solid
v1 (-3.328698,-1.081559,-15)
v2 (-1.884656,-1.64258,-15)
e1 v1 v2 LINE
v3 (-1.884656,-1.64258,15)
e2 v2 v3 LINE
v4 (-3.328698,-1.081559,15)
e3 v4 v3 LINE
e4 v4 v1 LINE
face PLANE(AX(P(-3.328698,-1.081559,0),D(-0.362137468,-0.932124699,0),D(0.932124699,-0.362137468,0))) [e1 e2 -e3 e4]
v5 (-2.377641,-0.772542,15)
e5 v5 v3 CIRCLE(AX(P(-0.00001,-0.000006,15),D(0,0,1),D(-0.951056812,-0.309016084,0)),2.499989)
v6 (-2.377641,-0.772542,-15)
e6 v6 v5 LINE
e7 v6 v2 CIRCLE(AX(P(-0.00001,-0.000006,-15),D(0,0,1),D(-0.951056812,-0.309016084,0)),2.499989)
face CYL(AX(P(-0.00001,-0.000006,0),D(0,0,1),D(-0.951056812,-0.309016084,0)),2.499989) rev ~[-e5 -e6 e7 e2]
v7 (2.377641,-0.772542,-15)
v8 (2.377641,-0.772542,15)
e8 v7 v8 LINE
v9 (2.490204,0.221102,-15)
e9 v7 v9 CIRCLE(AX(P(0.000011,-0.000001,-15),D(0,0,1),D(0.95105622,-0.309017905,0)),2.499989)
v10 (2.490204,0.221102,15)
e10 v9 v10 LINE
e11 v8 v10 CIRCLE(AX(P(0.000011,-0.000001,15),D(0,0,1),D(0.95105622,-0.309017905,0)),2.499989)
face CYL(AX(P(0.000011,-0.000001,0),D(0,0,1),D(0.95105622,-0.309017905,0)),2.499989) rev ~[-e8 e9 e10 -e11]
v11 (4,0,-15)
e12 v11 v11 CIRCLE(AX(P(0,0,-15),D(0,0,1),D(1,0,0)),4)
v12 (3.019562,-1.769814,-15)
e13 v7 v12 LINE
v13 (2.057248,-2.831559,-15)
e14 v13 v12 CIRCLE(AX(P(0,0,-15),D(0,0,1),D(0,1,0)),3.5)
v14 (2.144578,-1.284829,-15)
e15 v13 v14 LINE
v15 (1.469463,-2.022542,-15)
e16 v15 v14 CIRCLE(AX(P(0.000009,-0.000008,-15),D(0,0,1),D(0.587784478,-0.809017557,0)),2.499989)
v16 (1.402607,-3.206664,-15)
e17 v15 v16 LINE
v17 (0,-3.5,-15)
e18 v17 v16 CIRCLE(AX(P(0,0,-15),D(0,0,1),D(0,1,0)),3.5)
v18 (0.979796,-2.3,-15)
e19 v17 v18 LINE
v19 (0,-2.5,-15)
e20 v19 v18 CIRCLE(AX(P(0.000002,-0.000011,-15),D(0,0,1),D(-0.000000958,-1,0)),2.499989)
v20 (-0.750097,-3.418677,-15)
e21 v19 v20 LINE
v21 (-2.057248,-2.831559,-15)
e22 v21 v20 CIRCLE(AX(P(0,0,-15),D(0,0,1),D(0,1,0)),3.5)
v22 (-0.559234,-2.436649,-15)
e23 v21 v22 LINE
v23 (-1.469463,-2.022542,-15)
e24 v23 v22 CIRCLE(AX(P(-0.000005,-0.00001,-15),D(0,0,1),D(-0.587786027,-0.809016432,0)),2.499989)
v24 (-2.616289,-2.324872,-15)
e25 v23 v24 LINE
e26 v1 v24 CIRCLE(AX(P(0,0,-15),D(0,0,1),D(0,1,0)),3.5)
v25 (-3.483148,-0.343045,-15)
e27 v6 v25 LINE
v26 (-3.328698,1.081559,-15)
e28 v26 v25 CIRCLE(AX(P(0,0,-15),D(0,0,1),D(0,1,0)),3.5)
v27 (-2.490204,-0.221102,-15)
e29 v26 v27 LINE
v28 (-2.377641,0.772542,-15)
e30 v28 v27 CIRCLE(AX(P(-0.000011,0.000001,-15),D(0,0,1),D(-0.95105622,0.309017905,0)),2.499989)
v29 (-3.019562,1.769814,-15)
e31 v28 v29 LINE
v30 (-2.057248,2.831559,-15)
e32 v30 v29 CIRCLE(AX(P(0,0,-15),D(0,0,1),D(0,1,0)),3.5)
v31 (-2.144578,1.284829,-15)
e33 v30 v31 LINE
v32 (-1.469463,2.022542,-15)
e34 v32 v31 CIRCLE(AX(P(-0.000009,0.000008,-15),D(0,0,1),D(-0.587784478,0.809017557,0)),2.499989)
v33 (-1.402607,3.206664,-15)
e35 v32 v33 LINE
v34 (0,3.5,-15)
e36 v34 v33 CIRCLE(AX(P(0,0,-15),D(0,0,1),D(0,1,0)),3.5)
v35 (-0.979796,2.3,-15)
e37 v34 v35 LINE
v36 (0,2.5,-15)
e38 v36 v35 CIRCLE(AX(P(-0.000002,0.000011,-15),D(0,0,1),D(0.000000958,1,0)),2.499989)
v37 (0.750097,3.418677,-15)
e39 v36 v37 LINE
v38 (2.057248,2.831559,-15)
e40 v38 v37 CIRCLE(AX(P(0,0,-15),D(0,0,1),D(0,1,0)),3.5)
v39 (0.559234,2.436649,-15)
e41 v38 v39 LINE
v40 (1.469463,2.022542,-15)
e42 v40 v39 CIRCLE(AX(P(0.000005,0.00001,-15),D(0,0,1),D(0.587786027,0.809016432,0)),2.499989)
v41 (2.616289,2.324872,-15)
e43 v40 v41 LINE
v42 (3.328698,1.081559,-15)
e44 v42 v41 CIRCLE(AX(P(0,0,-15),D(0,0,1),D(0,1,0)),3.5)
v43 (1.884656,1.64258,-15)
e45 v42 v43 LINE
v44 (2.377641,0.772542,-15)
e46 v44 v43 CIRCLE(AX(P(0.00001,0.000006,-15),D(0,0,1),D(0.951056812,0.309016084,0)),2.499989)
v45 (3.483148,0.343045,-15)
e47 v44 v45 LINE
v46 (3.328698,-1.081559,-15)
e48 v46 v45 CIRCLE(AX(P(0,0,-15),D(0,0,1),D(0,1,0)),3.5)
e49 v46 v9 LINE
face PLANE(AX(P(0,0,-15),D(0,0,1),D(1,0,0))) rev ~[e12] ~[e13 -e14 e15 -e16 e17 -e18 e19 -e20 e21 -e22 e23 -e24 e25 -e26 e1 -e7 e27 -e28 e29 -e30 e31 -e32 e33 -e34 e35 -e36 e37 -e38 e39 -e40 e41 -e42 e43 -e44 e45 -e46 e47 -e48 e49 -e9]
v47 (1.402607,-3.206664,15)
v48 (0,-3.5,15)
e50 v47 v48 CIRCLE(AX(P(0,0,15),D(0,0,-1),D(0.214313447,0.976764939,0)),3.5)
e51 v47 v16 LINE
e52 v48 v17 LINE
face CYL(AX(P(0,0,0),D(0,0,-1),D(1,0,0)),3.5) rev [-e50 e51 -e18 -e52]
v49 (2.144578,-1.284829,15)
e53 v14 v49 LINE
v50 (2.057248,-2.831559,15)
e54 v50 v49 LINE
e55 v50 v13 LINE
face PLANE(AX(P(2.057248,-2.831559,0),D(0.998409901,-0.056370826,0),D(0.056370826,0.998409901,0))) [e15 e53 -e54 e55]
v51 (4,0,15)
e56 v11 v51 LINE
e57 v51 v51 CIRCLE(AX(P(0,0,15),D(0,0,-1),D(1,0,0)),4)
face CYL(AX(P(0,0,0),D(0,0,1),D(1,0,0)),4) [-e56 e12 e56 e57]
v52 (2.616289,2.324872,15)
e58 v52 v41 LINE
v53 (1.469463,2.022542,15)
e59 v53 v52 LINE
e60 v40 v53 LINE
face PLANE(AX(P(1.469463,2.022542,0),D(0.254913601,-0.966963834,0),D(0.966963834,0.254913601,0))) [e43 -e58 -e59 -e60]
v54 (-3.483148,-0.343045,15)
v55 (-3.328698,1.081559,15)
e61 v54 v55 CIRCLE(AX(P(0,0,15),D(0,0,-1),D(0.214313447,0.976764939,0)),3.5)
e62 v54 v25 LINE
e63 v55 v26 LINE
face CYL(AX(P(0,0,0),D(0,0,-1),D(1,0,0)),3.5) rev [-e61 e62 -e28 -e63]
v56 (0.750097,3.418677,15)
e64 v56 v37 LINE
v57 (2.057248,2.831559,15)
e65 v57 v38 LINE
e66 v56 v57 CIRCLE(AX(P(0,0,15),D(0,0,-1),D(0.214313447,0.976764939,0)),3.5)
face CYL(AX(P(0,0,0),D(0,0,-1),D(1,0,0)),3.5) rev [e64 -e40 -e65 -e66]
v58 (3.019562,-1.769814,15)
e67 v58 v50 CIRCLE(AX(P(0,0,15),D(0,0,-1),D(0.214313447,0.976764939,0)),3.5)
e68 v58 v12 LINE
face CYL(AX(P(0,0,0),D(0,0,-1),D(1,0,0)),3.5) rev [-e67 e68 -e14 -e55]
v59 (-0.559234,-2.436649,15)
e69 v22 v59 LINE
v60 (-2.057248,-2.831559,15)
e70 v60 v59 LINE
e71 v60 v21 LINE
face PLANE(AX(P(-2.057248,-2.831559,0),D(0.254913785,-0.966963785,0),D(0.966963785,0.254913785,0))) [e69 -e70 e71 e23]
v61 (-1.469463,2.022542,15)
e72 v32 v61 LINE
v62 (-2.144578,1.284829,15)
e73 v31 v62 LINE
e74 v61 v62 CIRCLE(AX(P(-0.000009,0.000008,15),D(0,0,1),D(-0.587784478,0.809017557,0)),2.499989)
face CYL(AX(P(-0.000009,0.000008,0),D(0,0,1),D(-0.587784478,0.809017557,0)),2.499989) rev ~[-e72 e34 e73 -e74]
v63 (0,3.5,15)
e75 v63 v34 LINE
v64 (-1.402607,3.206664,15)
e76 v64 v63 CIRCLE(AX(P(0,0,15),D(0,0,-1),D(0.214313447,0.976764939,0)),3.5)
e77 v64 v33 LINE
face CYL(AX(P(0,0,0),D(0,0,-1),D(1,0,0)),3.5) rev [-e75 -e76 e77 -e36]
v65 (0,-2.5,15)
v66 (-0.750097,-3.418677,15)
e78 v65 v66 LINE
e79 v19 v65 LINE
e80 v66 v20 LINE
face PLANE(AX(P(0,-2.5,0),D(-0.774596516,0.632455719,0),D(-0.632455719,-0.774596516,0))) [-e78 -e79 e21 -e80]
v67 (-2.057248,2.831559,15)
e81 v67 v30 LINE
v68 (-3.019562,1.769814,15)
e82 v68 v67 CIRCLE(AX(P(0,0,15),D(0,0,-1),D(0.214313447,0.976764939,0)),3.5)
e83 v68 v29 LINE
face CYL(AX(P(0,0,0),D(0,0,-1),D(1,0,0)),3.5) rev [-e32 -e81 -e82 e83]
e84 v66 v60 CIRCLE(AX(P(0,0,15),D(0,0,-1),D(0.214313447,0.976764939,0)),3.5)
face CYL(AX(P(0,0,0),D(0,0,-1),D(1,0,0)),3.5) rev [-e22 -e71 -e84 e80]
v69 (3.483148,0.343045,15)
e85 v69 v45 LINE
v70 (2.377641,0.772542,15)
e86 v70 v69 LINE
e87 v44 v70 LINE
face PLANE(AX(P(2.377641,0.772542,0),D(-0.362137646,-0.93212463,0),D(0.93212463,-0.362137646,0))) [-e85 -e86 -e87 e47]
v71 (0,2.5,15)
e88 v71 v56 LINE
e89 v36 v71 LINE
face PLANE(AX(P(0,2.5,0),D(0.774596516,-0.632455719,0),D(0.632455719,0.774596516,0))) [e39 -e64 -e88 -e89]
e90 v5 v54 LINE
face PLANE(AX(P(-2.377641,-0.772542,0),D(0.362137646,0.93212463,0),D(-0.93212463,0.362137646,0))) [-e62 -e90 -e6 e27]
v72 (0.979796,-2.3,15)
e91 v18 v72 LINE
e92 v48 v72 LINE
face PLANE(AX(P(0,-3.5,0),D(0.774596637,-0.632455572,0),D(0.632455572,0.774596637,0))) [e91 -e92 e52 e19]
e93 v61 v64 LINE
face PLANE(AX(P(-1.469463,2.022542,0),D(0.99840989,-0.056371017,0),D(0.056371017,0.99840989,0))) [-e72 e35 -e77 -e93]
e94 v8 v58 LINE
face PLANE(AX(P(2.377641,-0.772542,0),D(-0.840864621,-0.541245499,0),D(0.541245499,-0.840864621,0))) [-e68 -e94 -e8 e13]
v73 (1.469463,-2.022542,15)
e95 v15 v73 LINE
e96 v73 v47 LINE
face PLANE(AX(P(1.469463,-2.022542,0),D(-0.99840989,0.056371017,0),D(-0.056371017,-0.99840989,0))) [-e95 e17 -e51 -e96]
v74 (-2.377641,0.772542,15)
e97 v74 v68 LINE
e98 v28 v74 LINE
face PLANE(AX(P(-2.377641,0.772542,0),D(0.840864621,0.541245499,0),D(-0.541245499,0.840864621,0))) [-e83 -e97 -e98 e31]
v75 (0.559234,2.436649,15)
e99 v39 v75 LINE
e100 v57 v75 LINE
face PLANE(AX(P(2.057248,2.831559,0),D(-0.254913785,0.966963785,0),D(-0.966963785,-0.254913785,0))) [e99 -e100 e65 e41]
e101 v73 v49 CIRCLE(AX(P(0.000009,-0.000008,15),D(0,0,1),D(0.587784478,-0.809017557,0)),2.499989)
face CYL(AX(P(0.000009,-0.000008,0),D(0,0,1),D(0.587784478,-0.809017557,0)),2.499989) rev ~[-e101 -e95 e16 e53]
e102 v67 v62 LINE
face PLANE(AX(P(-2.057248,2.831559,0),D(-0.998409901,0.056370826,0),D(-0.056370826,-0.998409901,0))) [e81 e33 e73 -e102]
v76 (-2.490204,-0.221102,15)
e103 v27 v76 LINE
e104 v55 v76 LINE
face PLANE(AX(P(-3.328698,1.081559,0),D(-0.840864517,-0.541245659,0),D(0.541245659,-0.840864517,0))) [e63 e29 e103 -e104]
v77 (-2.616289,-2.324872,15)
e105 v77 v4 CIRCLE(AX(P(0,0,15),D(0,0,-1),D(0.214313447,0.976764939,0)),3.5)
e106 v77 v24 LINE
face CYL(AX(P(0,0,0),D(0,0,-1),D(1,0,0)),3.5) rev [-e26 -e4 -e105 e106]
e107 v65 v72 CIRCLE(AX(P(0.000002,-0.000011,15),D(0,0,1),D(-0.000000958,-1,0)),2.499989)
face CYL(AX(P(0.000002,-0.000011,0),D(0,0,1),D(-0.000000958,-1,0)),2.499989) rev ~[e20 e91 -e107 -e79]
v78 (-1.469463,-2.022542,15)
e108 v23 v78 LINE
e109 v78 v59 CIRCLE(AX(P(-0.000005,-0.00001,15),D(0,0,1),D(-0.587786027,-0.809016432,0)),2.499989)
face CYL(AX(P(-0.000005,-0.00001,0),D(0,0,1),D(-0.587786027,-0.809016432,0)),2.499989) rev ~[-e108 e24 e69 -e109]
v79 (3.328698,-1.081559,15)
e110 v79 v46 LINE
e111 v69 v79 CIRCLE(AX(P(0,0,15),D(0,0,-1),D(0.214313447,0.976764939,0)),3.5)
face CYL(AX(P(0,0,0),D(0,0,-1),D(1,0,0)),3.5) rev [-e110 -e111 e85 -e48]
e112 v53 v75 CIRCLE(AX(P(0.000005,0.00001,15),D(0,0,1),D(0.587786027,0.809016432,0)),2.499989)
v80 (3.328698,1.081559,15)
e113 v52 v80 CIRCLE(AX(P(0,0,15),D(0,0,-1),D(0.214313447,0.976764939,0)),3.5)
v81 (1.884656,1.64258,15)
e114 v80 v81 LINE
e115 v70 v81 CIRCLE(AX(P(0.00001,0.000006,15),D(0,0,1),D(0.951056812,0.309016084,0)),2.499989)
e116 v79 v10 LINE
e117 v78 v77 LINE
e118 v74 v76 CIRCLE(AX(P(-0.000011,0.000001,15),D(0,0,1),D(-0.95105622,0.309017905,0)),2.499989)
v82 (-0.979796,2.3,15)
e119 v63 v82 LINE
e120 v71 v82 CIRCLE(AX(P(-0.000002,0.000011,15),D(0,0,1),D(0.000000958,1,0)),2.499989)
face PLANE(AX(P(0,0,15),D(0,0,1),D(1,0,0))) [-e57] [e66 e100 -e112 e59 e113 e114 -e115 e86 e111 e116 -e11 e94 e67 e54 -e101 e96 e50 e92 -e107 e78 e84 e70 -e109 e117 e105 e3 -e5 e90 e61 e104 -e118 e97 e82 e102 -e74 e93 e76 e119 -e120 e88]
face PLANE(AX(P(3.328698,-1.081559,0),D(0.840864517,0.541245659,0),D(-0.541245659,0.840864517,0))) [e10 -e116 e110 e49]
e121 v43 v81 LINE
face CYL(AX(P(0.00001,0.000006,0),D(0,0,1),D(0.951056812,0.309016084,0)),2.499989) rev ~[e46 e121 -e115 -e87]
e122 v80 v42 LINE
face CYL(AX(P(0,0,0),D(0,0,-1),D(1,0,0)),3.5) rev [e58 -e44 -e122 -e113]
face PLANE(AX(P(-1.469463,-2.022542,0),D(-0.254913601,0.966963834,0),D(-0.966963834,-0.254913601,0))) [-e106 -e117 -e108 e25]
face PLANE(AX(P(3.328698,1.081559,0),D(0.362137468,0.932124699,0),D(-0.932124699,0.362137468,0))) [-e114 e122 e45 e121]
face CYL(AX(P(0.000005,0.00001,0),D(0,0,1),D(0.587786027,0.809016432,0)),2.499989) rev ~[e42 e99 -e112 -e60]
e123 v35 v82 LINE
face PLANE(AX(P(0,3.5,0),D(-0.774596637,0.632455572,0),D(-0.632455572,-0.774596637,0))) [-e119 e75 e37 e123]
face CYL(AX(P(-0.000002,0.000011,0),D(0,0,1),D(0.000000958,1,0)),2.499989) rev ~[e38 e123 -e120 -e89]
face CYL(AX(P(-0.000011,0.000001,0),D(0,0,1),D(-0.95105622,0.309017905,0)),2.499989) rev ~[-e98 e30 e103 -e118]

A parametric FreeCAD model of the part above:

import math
import FreeCAD as App
import Part
import Sketcher

V = App.Vector
Q = App.Units.Quantity

doc = App.newDocument("Part")
body = doc.addObject("PartDesign::Body", "Body")

# Sketch on XY plane
sketch1 = body.newObject("Sketcher::SketchObject", "Sketch")
sketch1.AttachmentSupport = (doc.getObject("XY_Plane"), [""])
sketch1.MapMode = "FlatFace"
sketch1.addGeometry(Part.Circle(V(0, 0, 0), V(0, 0, 1), 4), False)
sketch1.addGeometry(Part.Circle(V(0, 0, 0), V(0, 0, 1), 3.5), False)
sketch1.addConstraint(Sketcher.Constraint("Coincident", 0, 3, -1, 1))
sketch1.addConstraint(Sketcher.Constraint("Coincident", 1, 3, -1, 1))
sketch1.addConstraint(Sketcher.Constraint("Diameter", 0, Q("8 mm")))
sketch1.addConstraint(Sketcher.Constraint("Diameter", 1, Q("7 mm")))
pad1 = body.newObject("PartDesign::Pad", "Pad")
pad1.Profile = sketch1
pad1.Length = 30
pad1.Midplane = True

# Sketch on XY plane
sketch2 = body.newObject("Sketcher::SketchObject", "Sketch001")
sketch2.AttachmentSupport = (doc.getObject("XY_Plane"), [""])
sketch2.MapMode = "FlatFace"
sketch2.addGeometry(Part.LineSegment(V(0, 3.5, 0), V(-1, 2.3, 0)), False)
sketch2.addGeometry(Part.ArcOfCircle(Part.Circle(V(0, 0, 0), V(0, 0, 1), 2.5), math.radians(90), math.radians(113)), False)
sketch2.addGeometry(Part.LineSegment(V(0, 2.5, 0), V(0.8, 3.4, 0)), False)
sketch2.addGeometry(Part.ArcOfCircle(Part.Circle(V(0, 0, 0), V(0, 0, 1), 3.5), math.radians(77.62), math.radians(90)), False)
sketch2.addConstraint(Sketcher.Constraint("Coincident", 0, 2, 1, 2))
sketch2.addConstraint(Sketcher.Constraint("Coincident", 1, 1, 2, 1))
sketch2.addConstraint(Sketcher.Constraint("Coincident", 2, 2, 3, 1))
sketch2.addConstraint(Sketcher.Constraint("Coincident", 3, 2, 0, 1))
sketch2.addConstraint(Sketcher.Constraint("PointOnObject", 1, 1, -2))
sketch2.addConstraint(Sketcher.Constraint("PointOnObject", 3, 2, -2))
sketch2.addConstraint(Sketcher.Constraint("Parallel", 0, 2))
sketch2.addConstraint(Sketcher.Constraint("DistanceY", 1, 1, 3, 2, Q("1 mm")))
sketch2.addConstraint(Sketcher.Constraint("DistanceY", -1, 1, 0, 2, Q("2.3 mm")))
sketch2.addConstraint(Sketcher.Constraint("DistanceY", -1, 1, 1, 1, Q("2.5 mm")))
sketch2.addConstraint(Sketcher.Constraint("Radius", 1, Q("2.499989 mm")))
sketch2.addConstraint(Sketcher.Constraint("Radius", 3, Q("3.499968 mm")))
sketch2.addConstraint(Sketcher.Constraint("DistanceX", 0, 2, 3, 3, Q("0.979798 mm")))
sketch2.addConstraint(Sketcher.Constraint("DistanceX", 1, 3, 2, 2, Q("0.750099 mm")))
pad2 = body.newObject("PartDesign::Pad", "Pad001")
pad2.Profile = sketch2
pad2.Length = 30
pad2.Midplane = True
body2 = doc.addObject("PartDesign::Body", "Body001")
doc.recompute()

body2.BaseFeature = body
doc.recompute()

body3 = doc.addObject("PartDesign::Body", "Body002")
body3.BaseFeature = body
body3.Placement = App.Placement(V(0, 0, 0), App.Rotation(V(0, 0, 1), 36))
boolean = body2.newObject("PartDesign::Boolean", "Boolean")
boolean.Type = "Fuse"
boolean.addObjects([body3])
doc.recompute()

body4 = doc.addObject("PartDesign::Body", "Body003")
body4.BaseFeature = body
body4.Placement = App.Placement(V(0, 0, 0), App.Rotation(V(0, 0, 1), 72))
boolean2 = body2.newObject("PartDesign::Boolean", "Boolean001")
boolean2.Type = "Fuse"
boolean2.addObjects([body4])
doc.recompute()

body5 = doc.addObject("PartDesign::Body", "Body004")
body5.BaseFeature = body
body5.Placement = App.Placement(V(0, 0, 0), App.Rotation(V(0, 0, 1), 108))
boolean3 = body2.newObject("PartDesign::Boolean", "Boolean002")
boolean3.Type = "Fuse"
boolean3.addObjects([body5])
doc.recompute()

body6 = doc.addObject("PartDesign::Body", "Body005")
body6.BaseFeature = body
body6.Placement = App.Placement(V(0, 0, 0), App.Rotation(V(0, 0, 1), 144))
boolean4 = body2.newObject("PartDesign::Boolean", "Boolean003")
boolean4.Type = "Fuse"
boolean4.addObjects([body6])
doc.recompute()

body7 = doc.addObject("PartDesign::Body", "Body006")
body7.BaseFeature = body
body7.Placement = App.Placement(V(0, 0, 0), App.Rotation(V(0, 0, 1), 180))
boolean5 = body2.newObject("PartDesign::Boolean", "Boolean004")
boolean5.Type = "Fuse"
boolean5.addObjects([body7])
doc.recompute()

body8 = doc.addObject("PartDesign::Body", "Body007")
body8.BaseFeature = body
body8.Placement = App.Placement(V(0, 0, 0), App.Rotation(V(0, 0, 1), 216))
boolean6 = body2.newObject("PartDesign::Boolean", "Boolean005")
boolean6.Type = "Fuse"
boolean6.addObjects([body8])
doc.recompute()

body9 = doc.addObject("PartDesign::Body", "Body008")
body9.BaseFeature = body
body9.Placement = App.Placement(V(0, 0, 0), App.Rotation(V(0, 0, 1), 252))
boolean7 = body2.newObject("PartDesign::Boolean", "Boolean006")
boolean7.Type = "Fuse"
boolean7.addObjects([body9])
doc.recompute()

body10 = doc.addObject("PartDesign::Body", "Body009")
body10.BaseFeature = body
body10.Placement = App.Placement(V(0, 0, 0), App.Rotation(V(0, 0, 1), 288))
boolean8 = body2.newObject("PartDesign::Boolean", "Boolean007")
boolean8.Type = "Fuse"
boolean8.addObjects([body10])
doc.recompute()

body.Placement = App.Placement(V(0, 0, 0), App.Rotation(V(0, 0, 1), 324))
boolean9 = body2.newObject("PartDesign::Boolean", "Boolean008")
boolean9.Type = "Fuse"
boolean9.addObjects([body])

doc.recompute()
